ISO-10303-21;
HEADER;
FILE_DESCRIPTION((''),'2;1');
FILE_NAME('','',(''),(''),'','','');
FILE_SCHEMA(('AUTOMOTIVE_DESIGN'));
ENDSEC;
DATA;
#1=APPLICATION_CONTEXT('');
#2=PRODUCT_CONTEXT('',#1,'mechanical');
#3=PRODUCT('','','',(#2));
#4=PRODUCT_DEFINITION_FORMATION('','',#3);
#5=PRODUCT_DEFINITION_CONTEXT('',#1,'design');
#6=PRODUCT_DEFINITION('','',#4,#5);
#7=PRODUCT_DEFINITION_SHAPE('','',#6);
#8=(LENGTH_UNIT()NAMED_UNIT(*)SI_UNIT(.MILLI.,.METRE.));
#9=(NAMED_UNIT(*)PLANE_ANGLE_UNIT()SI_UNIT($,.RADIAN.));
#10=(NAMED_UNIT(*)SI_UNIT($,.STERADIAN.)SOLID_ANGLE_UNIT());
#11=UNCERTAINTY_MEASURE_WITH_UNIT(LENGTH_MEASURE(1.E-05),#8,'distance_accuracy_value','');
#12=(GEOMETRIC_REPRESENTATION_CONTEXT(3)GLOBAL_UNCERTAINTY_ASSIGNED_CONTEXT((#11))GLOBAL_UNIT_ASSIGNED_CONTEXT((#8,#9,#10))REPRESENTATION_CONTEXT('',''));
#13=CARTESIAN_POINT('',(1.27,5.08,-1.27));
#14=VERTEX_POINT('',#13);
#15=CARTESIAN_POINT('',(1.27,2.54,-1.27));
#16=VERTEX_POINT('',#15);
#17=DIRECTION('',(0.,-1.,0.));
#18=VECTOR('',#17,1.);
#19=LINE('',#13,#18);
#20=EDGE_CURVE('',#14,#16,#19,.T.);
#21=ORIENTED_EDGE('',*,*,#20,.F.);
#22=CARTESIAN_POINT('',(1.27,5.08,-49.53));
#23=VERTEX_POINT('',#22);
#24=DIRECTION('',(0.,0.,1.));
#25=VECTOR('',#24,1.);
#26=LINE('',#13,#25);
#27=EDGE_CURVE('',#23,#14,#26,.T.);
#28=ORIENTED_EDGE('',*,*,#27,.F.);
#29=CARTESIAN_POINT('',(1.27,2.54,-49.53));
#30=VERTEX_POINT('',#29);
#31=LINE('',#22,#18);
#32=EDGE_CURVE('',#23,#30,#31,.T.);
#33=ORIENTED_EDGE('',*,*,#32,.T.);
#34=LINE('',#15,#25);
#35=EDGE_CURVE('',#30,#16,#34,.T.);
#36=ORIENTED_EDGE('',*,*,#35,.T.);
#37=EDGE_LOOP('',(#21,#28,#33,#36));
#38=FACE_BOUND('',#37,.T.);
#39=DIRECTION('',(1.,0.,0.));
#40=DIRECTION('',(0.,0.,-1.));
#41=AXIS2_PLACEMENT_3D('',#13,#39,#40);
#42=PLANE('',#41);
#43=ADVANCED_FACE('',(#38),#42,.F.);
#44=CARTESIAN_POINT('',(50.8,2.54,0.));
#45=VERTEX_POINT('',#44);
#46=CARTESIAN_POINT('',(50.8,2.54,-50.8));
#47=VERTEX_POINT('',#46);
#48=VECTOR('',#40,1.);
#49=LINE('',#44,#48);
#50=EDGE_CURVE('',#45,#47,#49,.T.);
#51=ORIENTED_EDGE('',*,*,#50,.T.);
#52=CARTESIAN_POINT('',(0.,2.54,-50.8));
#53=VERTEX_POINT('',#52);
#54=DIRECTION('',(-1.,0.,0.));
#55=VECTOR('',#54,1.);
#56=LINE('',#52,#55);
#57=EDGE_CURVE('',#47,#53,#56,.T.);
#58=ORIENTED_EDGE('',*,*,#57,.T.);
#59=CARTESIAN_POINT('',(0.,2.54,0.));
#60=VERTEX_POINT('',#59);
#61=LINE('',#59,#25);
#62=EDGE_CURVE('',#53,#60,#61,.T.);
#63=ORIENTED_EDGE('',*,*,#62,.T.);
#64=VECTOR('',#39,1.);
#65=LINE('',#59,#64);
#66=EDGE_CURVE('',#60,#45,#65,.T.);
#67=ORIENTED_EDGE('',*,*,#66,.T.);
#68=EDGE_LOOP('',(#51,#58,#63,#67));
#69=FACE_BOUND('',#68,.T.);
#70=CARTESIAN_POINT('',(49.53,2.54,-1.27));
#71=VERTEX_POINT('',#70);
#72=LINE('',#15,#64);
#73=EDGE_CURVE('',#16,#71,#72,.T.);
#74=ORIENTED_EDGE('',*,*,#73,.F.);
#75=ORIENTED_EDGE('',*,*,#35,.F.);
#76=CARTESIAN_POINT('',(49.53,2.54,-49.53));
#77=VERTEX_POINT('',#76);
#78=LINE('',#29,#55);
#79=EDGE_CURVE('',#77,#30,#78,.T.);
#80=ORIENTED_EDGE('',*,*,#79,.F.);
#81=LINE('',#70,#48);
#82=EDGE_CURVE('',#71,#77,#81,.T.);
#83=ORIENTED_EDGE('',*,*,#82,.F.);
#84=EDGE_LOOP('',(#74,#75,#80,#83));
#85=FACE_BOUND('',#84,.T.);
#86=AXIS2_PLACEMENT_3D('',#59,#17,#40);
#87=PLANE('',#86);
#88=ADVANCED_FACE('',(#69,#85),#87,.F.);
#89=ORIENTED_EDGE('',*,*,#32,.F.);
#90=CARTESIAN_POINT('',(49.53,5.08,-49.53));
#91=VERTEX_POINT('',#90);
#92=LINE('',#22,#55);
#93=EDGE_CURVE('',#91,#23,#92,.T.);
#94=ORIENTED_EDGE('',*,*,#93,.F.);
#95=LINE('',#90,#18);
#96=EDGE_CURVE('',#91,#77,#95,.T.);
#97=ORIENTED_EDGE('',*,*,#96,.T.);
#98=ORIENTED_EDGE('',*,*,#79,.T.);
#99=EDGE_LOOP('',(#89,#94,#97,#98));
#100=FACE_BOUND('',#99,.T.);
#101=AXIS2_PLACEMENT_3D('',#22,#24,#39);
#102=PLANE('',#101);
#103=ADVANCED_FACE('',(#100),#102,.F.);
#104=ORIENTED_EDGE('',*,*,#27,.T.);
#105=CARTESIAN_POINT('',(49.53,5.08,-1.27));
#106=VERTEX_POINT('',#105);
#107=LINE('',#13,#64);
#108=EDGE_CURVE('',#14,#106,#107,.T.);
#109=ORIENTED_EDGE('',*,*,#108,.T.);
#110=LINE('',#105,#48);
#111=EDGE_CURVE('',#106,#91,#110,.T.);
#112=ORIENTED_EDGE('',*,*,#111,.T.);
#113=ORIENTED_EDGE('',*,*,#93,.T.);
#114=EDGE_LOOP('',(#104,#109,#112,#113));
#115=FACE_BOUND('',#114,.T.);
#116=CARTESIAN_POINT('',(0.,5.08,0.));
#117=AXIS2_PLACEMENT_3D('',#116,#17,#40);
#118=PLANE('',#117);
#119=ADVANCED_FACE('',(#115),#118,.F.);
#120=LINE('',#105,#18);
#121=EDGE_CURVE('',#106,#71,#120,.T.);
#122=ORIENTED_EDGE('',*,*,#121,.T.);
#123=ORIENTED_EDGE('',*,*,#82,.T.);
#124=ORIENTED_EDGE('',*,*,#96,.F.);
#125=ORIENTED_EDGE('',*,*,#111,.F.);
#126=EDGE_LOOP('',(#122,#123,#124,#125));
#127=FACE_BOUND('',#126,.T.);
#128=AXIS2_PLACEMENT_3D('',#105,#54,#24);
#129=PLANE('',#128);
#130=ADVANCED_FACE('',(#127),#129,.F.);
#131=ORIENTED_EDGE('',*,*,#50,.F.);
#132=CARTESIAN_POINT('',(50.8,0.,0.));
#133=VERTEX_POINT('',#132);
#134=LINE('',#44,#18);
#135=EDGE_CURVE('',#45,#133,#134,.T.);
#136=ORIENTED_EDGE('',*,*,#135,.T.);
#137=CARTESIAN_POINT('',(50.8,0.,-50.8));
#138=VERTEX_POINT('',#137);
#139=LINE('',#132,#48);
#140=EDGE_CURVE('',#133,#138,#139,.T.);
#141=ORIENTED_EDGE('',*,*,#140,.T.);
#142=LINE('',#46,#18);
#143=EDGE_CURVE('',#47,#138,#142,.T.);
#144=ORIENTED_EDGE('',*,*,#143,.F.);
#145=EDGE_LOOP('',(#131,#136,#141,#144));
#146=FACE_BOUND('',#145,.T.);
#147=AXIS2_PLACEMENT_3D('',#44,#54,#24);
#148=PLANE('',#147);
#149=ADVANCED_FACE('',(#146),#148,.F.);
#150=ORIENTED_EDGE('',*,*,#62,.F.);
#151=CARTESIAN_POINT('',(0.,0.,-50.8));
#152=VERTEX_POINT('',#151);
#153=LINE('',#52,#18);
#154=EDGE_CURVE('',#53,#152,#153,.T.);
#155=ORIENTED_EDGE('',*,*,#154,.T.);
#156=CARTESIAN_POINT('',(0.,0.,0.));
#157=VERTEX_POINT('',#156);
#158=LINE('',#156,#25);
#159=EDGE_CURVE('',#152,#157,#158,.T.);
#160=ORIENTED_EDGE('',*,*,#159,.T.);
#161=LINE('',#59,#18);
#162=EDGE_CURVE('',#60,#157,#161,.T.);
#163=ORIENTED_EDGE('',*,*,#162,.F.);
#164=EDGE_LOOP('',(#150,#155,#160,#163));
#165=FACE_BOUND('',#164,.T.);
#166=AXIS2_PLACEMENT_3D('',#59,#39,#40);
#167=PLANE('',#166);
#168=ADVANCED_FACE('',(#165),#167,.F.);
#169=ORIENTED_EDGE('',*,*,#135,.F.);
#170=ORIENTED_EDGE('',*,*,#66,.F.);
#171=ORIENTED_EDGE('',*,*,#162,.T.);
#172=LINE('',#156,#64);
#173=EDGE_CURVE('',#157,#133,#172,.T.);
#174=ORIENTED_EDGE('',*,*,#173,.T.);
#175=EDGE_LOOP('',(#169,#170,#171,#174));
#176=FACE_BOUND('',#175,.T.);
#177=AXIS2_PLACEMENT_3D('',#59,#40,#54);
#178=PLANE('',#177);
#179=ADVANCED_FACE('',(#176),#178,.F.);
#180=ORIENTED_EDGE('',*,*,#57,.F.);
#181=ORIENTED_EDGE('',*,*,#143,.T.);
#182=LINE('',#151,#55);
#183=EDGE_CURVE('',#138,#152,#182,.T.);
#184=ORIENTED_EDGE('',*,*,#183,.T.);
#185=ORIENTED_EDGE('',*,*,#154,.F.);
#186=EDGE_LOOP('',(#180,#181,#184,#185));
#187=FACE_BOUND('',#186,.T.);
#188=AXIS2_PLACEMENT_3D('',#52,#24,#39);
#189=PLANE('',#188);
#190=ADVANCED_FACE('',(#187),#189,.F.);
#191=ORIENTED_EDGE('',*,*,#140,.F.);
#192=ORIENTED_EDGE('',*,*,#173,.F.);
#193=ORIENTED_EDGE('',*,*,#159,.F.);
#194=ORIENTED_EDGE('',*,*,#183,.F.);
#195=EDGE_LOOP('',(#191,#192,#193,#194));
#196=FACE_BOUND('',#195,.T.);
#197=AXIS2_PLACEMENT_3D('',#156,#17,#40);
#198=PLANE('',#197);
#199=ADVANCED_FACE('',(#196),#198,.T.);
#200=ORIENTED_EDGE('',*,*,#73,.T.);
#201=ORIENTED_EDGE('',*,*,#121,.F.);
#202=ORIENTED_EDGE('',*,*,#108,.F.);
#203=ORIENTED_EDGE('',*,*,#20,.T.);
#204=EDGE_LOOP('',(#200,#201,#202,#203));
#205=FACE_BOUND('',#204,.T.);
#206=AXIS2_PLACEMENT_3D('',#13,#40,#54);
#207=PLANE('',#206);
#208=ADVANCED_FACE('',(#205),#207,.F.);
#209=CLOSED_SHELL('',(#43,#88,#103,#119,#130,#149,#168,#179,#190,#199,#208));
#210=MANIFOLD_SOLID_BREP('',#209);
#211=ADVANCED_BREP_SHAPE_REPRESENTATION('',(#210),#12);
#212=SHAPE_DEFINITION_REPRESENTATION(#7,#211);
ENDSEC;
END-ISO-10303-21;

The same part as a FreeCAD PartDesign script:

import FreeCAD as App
import Part
import Sketcher
Q = App.Units.Quantity


def add_polygon(sketch, points):
    """Adds a closed chain of lines whose ends are joined by coincident constraints."""
    first, n = sketch.GeometryCount, len(points)
    for a, b in zip(points, points[1:] + points[:1]):
        sketch.addGeometry(Part.LineSegment(App.Vector(*a, 0), App.Vector(*b, 0)), False)
    for i in range(n):
        sketch.addConstraint(Sketcher.Constraint("Coincident", first + i, 2, first + (i + 1) % n, 1))

doc = App.newDocument("Part")
body = doc.addObject("PartDesign::Body", "Body")

# Sketch on XZ plane
sketch1 = body.newObject("Sketcher::SketchObject", "Sketch")
sketch1.AttachmentSupport = (doc.getObject("XZ_Plane"), [""])
sketch1.MapMode = "FlatFace"
add_polygon(sketch1, [(0, -51), (0, 0), (51, 0), (51, -51)])  # lines 0-3
sketch1.addConstraint([
    Sketcher.Constraint("Vertical", 0),
    Sketcher.Constraint("Horizontal", 1),
    Sketcher.Constraint("Vertical", 2),
    Sketcher.Constraint("Horizontal", 3),
    Sketcher.Constraint("Coincident", 0, 2, -1, 1),
    Sketcher.Constraint("Equal", 3, 0),
    Sketcher.Constraint("DistanceX", 1, 1, 1, 2, Q("2 in")),
])
pad1 = body.newObject("PartDesign::Pad", "Pad")
pad1.Profile = sketch1
pad1.Length = Q("0.1 in")
pad1.Reversed = True

# Sketch on XZ plane
sketch2 = body.newObject("Sketcher::SketchObject", "Sketch001")
sketch2.AttachmentSupport = (doc.getObject("XZ_Plane"), [""])
sketch2.MapMode = "FlatFace"
sketch2.AttachmentOffset = App.Placement(App.Vector(0, 0, -0.1 * 25.4), App.Rotation())
add_polygon(sketch2, [(1, -50), (1, -1), (50, -1), (50, -50)])  # lines 0-3
sketch2.addConstraint([
    Sketcher.Constraint("Vertical", 0),
    Sketcher.Constraint("Horizontal", 1),
    Sketcher.Constraint("Vertical", 2),
    Sketcher.Constraint("Horizontal", 3),
    Sketcher.Constraint("Equal", 3, 0),
    Sketcher.Constraint("DistanceX", 1, 1, 1, 2, Q("1.9 in")),
    Sketcher.Constraint("DistanceX", -1, 1, 0, 2, Q("0.05 in")),
    Sketcher.Constraint("DistanceY", 0, 2, -1, 1, Q("0.05 in")),
])
pad2 = body.newObject("PartDesign::Pad", "Pad001")
pad2.Profile = sketch2
pad2.Length = Q("0.1 in")
pad2.Reversed = True

doc.recompute()
